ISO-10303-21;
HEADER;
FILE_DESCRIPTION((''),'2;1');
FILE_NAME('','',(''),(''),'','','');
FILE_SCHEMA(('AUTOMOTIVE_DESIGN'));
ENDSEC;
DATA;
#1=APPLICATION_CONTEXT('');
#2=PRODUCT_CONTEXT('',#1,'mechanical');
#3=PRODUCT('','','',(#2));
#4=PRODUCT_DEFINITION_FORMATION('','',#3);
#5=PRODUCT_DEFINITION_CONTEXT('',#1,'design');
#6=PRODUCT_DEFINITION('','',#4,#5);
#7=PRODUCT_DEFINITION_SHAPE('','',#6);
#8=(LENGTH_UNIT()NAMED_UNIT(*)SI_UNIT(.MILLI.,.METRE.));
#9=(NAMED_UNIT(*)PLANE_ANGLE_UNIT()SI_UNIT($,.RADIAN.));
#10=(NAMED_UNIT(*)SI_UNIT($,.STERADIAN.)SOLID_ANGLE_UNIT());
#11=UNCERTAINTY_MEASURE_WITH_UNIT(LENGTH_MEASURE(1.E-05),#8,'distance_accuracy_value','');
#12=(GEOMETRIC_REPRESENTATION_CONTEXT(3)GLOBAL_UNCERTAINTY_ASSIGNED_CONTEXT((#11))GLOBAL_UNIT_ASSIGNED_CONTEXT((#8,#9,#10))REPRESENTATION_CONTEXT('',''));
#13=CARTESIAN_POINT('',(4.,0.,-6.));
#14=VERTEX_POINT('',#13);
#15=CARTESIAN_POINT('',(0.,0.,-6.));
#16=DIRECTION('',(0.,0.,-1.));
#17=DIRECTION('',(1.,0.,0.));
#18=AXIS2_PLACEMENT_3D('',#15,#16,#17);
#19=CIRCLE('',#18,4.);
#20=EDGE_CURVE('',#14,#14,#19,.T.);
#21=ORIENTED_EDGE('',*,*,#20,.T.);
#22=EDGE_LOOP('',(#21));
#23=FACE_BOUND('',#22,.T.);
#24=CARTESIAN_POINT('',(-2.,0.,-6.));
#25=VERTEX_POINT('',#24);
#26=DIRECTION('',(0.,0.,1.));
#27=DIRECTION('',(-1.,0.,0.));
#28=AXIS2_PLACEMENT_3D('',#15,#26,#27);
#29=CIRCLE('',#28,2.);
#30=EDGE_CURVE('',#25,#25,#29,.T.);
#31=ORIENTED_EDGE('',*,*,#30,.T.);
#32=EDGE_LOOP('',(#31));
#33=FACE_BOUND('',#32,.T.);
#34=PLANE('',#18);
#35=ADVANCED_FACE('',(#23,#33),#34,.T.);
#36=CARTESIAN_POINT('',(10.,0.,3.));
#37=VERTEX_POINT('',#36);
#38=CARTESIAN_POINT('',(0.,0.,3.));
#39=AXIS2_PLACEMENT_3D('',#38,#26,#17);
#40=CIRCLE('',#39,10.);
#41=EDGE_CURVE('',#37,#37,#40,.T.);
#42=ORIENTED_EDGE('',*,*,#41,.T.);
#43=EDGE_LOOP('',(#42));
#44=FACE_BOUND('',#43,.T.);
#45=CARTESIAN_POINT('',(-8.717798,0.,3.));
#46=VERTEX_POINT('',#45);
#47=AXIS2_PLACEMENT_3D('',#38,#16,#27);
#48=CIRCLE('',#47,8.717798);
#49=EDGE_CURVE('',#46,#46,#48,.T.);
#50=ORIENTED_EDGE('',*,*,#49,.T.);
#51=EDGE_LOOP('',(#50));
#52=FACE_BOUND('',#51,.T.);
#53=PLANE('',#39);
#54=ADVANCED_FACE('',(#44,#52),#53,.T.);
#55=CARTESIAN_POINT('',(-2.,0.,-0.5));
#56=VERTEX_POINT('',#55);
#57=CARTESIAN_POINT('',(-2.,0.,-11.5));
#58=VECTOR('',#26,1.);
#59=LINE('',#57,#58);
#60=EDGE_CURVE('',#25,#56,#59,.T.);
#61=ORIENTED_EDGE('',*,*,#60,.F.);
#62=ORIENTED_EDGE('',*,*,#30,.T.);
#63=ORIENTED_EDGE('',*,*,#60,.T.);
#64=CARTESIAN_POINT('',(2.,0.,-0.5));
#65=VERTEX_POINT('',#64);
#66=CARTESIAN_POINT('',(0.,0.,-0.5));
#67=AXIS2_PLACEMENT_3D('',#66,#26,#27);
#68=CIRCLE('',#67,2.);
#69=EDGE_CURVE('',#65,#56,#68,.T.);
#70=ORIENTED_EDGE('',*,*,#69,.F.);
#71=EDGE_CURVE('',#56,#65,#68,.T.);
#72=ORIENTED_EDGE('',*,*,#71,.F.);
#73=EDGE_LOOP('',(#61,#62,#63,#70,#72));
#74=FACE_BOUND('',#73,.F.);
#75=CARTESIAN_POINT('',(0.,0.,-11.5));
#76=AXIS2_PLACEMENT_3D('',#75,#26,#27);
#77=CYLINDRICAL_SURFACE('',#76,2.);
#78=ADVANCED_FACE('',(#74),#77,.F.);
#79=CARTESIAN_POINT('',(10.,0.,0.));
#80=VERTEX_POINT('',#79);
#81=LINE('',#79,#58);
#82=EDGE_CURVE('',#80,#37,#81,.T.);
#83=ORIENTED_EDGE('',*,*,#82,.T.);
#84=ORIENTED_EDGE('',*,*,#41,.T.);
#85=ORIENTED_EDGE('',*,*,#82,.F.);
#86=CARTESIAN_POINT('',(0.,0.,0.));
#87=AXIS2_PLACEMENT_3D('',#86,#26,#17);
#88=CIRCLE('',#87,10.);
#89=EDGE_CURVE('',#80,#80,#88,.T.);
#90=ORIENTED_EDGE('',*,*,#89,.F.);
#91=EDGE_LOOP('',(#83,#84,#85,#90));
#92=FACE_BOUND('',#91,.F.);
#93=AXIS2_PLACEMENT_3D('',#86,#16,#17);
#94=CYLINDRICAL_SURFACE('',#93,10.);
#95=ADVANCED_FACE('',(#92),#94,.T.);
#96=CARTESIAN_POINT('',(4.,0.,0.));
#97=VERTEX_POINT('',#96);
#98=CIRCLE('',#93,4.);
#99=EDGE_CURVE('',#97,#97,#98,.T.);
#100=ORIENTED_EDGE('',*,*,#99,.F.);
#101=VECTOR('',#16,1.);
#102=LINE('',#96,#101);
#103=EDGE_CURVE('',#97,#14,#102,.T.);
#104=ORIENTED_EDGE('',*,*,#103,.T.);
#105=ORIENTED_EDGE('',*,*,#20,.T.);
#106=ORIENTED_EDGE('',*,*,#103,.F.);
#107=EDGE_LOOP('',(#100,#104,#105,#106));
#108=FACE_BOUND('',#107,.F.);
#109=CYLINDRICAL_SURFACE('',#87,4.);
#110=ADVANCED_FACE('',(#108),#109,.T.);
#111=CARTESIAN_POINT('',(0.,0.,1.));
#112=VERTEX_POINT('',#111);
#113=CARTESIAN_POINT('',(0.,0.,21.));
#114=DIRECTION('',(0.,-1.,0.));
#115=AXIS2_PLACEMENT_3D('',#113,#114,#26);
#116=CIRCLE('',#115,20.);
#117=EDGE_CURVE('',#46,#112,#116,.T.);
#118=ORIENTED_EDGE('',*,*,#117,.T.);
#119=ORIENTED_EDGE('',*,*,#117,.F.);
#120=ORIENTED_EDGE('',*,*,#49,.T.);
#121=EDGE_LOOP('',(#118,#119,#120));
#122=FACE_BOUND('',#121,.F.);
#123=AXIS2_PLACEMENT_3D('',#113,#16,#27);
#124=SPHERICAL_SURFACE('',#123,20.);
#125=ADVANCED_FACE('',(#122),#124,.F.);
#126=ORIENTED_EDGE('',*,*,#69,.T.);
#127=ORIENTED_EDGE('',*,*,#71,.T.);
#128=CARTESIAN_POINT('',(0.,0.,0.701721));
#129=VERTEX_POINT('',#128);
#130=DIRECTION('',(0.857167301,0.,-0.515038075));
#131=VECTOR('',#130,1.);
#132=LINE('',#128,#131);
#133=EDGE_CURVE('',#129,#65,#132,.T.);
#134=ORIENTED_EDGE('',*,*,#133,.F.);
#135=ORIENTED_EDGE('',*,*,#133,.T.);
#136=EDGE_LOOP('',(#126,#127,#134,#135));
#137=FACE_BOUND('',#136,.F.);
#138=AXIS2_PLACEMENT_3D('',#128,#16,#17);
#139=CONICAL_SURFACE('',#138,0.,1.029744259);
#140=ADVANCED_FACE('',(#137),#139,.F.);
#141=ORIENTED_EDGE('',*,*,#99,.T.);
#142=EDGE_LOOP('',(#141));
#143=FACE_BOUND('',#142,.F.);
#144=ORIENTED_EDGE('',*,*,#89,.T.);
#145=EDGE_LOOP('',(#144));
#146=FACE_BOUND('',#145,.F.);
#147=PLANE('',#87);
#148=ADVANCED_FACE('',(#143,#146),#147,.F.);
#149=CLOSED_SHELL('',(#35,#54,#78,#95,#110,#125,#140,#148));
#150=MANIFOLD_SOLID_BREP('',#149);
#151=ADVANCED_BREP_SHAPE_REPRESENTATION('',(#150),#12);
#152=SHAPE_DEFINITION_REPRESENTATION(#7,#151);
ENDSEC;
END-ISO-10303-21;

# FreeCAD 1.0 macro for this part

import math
import FreeCAD as App
import Part
import Sketcher
from FreeCAD import Vector
Q = App.Units.Quantity

doc = App.newDocument("Part")
body = doc.addObject("PartDesign::Body", "Body")

# Sketch on XY plane
sketch1 = doc.addObject("Sketcher::SketchObject", "Sketch")
body.addObject(sketch1)
sketch1.AttachmentSupport = (doc.XY_Plane, [""])
sketch1.MapMode = "FlatFace"
sketch1.addGeometry(Part.Circle(Vector(0, 0, 0), Vector(0, 0, 1), 10), False)
sketch1.addConstraint([
    Sketcher.Constraint("Coincident", 0, 3, -1, 1),
    Sketcher.Constraint("Diameter", 0, Q("20 mm")),
])
pad1 = doc.addObject("PartDesign::Pad", "Pad")
body.addObject(pad1)
pad1.Profile = sketch1
pad1.Length = 3

# Sketch on XZ plane
sketch2 = doc.addObject("Sketcher::SketchObject", "Sketch001")
body.addObject(sketch2)
sketch2.AttachmentSupport = (doc.XZ_Plane, [""])
sketch2.MapMode = "FlatFace"
sketch2.addGeometry([
    Part.LineSegment(Vector(0, 1, 0), Vector(0, 41, 0)),
    Part.ArcOfCircle(Part.Circle(Vector(0, 21, 0), Vector(0, 0, 1), 20), math.radians(90), math.radians(270)),
], False)
sketch2.addConstraint([
    Sketcher.Constraint("Coincident", 0, 1, 1, 2),
    Sketcher.Constraint("Coincident", 1, 1, 0, 2),
    Sketcher.Constraint("Vertical", 0),
    Sketcher.Constraint("PointOnObject", 1, 3, -2),
    Sketcher.Constraint("PointOnObject", 0, 1, -2),
    Sketcher.Constraint("Radius", 1, Q("20 mm")),
    Sketcher.Constraint("DistanceY", -1, 1, 1, 3, Q("21 mm")),
])
groove = doc.addObject("PartDesign::Groove", "Groove")
body.addObject(groove)
groove.Profile = sketch2
groove.ReferenceAxis = (sketch2, ["V_Axis"])
groove.Angle = 360

# Sketch on XY plane
sketch3 = doc.addObject("Sketcher::SketchObject", "Sketch002")
body.addObject(sketch3)
sketch3.AttachmentSupport = (doc.XY_Plane, [""])
sketch3.MapMode = "FlatFace"
sketch3.addGeometry(Part.Circle(Vector(0, 0, 0), Vector(0, 0, 1), 4), False)
sketch3.addConstraint([
    Sketcher.Constraint("Coincident", 0, 3, -1, 1),
    Sketcher.Constraint("Diameter", 0, Q("8 mm")),
])
pad2 = doc.addObject("PartDesign::Pad", "Pad001")
body.addObject(pad2)
pad2.Profile = sketch3
pad2.Length = 6
pad2.Reversed = True

# Sketch on XY plane
sketch4 = doc.addObject("Sketcher::SketchObject", "Sketch003")
body.addObject(sketch4)
sketch4.AttachmentSupport = (doc.XY_Plane, [""])
sketch4.MapMode = "FlatFace"
sketch4.AttachmentOffset = App.Placement(Vector(0, 0, -6), App.Rotation())
sketch4.addGeometry(Part.Circle(Vector(0, 0, 0), Vector(0, 0, 1), 2), False)
sketch4.addConstraint([
    Sketcher.Constraint("Coincident", 0, 3, -1, 1),
    Sketcher.Constraint("Diameter", 0, Q("4 mm")),
])
doc.recompute()
hole = doc.addObject("PartDesign::Hole", "Hole")
body.addObject(hole)
hole.Profile = sketch4
hole.ThreadType = "None"
hole.Diameter = 4
hole.DepthType = "Dimension"
hole.Depth = 5.5
hole.DrillPoint = "Angled"
hole.DrillPointAngle = 118
hole.Reversed = True

doc.recompute()
